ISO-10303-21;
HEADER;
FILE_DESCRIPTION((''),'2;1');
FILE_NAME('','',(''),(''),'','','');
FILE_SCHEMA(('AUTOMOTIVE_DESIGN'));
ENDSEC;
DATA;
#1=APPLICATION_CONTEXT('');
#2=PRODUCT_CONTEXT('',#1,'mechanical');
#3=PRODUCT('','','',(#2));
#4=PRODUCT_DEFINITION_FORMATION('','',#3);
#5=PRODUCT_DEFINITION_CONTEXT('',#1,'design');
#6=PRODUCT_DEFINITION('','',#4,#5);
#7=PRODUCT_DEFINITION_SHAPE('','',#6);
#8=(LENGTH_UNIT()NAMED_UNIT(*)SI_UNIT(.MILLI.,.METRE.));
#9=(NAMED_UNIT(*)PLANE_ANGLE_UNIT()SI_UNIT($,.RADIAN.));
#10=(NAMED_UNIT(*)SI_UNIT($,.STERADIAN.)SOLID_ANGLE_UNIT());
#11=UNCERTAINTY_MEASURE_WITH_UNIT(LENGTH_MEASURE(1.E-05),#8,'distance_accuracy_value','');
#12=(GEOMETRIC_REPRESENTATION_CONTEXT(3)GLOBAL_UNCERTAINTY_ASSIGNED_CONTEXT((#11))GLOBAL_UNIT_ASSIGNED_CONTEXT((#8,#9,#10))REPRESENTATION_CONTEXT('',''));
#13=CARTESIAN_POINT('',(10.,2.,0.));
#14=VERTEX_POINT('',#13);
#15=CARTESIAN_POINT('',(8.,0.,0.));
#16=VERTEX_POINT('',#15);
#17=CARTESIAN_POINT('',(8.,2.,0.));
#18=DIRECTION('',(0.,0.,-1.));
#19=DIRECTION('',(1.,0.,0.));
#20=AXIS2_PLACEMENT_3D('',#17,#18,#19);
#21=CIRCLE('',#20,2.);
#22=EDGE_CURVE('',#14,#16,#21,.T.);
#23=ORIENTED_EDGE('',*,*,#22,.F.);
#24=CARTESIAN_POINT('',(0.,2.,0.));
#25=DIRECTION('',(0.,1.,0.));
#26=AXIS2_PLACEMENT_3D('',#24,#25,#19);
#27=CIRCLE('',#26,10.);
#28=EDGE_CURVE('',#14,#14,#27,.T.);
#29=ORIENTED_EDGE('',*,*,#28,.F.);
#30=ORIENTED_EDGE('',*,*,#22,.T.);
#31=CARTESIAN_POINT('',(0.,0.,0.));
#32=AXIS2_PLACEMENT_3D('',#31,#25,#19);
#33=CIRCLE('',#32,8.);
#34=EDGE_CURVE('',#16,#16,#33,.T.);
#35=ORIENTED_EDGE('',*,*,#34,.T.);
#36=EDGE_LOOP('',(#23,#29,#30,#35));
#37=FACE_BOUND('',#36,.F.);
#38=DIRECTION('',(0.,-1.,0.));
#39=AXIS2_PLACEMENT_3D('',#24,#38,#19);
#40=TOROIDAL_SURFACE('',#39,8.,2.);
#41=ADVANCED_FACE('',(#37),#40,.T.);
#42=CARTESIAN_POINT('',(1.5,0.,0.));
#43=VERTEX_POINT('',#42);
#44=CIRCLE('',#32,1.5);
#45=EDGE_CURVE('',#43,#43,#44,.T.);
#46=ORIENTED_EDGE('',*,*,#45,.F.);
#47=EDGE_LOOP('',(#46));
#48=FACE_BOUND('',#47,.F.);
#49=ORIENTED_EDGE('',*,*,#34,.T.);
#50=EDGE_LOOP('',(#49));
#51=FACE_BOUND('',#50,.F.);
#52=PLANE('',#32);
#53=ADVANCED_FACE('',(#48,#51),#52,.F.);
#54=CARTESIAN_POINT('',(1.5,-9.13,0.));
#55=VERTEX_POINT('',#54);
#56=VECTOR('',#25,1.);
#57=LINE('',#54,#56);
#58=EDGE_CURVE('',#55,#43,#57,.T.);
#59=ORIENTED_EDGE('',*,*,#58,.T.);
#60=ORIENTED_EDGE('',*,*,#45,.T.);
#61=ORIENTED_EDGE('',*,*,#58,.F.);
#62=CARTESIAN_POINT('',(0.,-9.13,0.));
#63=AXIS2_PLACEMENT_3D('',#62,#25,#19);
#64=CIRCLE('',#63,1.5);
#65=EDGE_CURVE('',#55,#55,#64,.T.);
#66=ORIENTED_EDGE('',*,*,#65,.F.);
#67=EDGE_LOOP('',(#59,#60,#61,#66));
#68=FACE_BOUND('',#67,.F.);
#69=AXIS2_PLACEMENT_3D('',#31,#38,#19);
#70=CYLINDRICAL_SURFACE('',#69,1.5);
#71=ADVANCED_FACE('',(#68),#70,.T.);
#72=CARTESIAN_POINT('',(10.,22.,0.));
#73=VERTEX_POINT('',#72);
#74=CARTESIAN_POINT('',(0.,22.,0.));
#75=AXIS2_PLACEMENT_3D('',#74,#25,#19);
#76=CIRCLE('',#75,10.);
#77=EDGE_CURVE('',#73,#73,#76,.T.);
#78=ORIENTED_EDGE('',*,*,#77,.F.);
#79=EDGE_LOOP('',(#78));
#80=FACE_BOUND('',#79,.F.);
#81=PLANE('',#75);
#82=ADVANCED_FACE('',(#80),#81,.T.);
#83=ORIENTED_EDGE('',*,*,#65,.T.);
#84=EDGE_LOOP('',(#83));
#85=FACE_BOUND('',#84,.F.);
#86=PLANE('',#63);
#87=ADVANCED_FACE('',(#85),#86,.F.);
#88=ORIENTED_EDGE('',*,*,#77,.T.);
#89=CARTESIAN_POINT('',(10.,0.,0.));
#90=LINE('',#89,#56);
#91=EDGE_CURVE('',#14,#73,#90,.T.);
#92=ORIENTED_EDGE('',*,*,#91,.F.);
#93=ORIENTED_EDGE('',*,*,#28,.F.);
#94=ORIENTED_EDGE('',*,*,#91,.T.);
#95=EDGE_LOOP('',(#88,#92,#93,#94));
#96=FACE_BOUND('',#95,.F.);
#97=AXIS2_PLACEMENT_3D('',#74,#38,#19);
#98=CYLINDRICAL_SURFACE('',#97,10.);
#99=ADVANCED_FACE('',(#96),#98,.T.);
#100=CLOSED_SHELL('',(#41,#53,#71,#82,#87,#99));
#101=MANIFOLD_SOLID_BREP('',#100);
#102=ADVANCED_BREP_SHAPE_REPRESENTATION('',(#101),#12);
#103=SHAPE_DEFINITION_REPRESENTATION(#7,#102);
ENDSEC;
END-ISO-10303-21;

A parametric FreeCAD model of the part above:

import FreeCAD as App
import Part
import Sketcher

V = App.Vector
Q = App.Units.Quantity


def edges_at(feature, points):
    """Names of the edges that pass closest to the given points."""
    edges = feature.Shape.Edges
    near = lambda p: min(range(len(edges)), key=lambda i: edges[i].distToShape(Part.Vertex(*p))[0])
    return sorted({f"Edge{near(p) + 1}" for p in points})


def add_polygon(sketch, points):
    """Adds a closed chain of lines whose ends are joined by coincident constraints."""
    first, n = sketch.GeometryCount, len(points)
    for a, b in zip(points, points[1:] + points[:1]):
        sketch.addGeometry(Part.LineSegment(App.Vector(*a, 0), App.Vector(*b, 0)), False)
    for i in range(n):
        sketch.addConstraint(Sketcher.Constraint("Coincident", first + i, 2, first + (i + 1) % n, 1))

doc = App.newDocument("Part")
body = doc.addObject("PartDesign::Body", "Body")

# Sketch on XY plane
sketch1 = body.newObject("Sketcher::SketchObject", "Sketch")
sketch1.AttachmentSupport = (doc.getObject("XY_Plane"), [""])
sketch1.MapMode = "FlatFace"
add_polygon(sketch1, [(0, 22), (0, -9.1), (1.5, -9.1), (1.5, 0), (10, 0), (10, 22)])  # lines 0-5
sketch1.addConstraint([
    Sketcher.Constraint("Vertical", 0),
    Sketcher.Constraint("Horizontal", 1),
    Sketcher.Constraint("Vertical", 2),
    Sketcher.Constraint("Horizontal", 3),
    Sketcher.Constraint("Vertical", 4),
    Sketcher.Constraint("Horizontal", 5),
    Sketcher.Constraint("PointOnObject", 0, 2, -2),
    Sketcher.Constraint("PointOnObject", 2, 2, -1),
    Sketcher.Constraint("DistanceX", 5, 2, 5, 1, Q("10 mm")),
    Sketcher.Constraint("DistanceY", 4, 1, 4, 2, Q("22 mm")),
    Sketcher.Constraint("DistanceX", 1, 1, 1, 2, Q("1.5 mm")),
    Sketcher.Constraint("DistanceY", 2, 1, 2, 2, Q("9.13 mm")),
])
revolution = body.newObject("PartDesign::Revolution", "Revolution")
revolution.Profile = sketch1
revolution.ReferenceAxis = (sketch1, ["V_Axis"])
revolution.Angle = 360
doc.recompute()

fillet = body.newObject("PartDesign::Fillet", "Fillet")
fillet.Base = (revolution, edges_at(revolution, [(-10, 0, 0)]))
fillet.Radius = 2

doc.recompute()
